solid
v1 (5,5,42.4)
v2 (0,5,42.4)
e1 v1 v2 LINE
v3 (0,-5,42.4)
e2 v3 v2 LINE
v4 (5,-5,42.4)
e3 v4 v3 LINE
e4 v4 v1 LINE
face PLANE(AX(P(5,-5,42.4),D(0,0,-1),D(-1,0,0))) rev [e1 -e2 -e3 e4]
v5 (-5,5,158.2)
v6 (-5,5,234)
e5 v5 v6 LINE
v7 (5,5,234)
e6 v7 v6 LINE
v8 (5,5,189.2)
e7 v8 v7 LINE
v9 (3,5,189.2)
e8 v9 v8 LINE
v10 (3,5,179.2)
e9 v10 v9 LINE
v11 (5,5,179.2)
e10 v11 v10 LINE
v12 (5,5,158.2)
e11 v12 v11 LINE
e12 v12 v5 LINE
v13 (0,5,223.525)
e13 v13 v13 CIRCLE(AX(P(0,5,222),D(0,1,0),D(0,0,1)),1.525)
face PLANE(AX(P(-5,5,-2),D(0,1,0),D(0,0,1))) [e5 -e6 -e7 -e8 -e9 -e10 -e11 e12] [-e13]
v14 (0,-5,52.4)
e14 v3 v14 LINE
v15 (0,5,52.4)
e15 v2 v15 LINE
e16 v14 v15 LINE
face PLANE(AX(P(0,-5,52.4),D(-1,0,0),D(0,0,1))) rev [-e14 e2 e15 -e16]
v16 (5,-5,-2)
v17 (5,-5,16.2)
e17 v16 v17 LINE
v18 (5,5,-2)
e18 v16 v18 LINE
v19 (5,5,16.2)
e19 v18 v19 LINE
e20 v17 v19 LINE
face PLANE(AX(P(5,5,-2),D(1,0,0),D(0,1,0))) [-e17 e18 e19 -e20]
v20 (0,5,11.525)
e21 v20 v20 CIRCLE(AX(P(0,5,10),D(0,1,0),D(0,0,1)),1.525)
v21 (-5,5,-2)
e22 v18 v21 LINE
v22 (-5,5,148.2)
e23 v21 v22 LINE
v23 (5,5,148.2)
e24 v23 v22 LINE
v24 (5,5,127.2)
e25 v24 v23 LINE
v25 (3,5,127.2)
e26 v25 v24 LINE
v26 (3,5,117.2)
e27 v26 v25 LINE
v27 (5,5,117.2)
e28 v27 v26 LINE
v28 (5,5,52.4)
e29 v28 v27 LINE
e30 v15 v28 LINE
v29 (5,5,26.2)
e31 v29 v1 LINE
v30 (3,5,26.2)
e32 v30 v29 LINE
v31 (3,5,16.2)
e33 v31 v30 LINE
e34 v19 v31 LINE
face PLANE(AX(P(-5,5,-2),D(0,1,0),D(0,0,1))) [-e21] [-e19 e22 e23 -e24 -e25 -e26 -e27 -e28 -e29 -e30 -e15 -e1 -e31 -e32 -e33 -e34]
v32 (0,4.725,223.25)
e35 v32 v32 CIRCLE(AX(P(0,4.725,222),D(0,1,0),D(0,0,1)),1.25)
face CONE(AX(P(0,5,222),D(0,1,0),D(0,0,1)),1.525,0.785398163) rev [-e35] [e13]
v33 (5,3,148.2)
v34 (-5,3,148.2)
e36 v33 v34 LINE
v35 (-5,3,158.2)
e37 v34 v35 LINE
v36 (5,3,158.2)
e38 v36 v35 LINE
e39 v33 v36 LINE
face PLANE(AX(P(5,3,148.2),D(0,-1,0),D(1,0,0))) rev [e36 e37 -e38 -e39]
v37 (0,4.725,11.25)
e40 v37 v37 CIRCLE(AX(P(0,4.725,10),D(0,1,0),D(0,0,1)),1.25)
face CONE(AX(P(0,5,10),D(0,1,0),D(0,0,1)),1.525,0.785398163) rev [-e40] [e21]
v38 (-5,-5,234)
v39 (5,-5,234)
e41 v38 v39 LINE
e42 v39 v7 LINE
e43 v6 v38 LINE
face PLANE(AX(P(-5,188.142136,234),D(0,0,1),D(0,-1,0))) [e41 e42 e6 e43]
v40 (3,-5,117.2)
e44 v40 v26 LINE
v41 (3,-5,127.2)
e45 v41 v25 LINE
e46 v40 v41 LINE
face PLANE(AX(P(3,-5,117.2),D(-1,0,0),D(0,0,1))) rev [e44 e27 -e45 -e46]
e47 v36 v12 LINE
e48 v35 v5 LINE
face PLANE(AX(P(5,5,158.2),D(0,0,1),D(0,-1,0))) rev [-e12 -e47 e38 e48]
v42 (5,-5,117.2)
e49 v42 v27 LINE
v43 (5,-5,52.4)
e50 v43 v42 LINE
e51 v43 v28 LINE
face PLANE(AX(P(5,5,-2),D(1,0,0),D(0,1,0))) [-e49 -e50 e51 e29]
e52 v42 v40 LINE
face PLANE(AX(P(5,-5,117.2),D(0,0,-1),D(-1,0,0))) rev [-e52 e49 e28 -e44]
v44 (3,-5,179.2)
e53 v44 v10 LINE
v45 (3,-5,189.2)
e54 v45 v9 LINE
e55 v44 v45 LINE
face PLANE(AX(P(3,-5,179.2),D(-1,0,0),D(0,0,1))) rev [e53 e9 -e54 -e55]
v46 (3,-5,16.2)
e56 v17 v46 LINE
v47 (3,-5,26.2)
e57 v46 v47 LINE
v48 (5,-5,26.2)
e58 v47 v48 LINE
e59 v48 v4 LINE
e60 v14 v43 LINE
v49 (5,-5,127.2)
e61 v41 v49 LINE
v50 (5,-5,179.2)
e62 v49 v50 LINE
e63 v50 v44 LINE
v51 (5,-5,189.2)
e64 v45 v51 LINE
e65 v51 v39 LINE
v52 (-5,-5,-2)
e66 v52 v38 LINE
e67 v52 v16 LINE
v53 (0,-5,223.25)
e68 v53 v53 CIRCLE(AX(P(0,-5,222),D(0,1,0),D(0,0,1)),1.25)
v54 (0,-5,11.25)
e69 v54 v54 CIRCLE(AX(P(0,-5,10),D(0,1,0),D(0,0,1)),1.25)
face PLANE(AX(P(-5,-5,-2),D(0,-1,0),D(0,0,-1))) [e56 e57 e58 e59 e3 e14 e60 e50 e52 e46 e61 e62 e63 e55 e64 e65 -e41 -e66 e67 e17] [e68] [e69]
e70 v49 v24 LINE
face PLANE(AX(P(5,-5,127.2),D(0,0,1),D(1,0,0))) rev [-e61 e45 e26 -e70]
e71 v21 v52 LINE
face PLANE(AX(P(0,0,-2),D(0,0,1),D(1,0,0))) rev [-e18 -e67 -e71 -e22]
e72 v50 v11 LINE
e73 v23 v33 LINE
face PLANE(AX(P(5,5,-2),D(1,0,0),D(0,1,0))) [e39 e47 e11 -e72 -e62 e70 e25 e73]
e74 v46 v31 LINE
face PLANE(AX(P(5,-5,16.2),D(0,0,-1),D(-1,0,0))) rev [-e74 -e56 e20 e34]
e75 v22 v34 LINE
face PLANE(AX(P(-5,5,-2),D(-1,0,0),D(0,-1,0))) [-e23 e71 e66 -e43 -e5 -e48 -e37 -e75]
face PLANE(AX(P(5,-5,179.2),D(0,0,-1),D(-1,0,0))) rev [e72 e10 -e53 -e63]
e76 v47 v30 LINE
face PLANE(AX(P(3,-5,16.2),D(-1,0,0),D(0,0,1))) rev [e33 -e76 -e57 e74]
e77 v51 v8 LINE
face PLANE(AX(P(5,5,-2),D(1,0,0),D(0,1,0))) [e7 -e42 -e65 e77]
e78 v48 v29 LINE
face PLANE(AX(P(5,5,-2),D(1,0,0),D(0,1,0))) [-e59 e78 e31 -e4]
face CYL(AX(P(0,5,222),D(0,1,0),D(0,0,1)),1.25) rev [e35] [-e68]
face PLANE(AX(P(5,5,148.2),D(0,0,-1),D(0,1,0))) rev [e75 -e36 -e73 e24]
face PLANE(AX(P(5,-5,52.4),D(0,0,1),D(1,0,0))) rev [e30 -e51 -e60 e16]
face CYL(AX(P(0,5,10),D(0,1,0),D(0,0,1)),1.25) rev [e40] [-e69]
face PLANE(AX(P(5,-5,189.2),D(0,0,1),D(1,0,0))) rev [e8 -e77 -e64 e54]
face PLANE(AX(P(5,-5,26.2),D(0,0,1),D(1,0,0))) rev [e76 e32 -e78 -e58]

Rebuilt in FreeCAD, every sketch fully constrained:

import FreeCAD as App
import Part
import Sketcher
Q = App.Units.Quantity

doc = App.newDocument("Part")
body = doc.addObject("PartDesign::Body", "Body")

# Sketch on XY plane
sketch1 = body.newObject("Sketcher::SketchObject", "Sketch")
sketch1.AttachmentSupport = (doc.getObject("XY_Plane"), [""])
sketch1.MapMode = "FlatFace"
sketch1.addGeometry(Part.LineSegment(App.Vector(-5, 5, 0), App.Vector(-5, -5, 0)), False)
sketch1.addGeometry(Part.LineSegment(App.Vector(-5, -5, 0), App.Vector(5, -5, 0)), False)
sketch1.addGeometry(Part.LineSegment(App.Vector(5, -5, 0), App.Vector(5, 5, 0)), False)
sketch1.addGeometry(Part.LineSegment(App.Vector(5, 5, 0), App.Vector(-5, 5, 0)), False)
sketch1.addConstraint(Sketcher.Constraint("Coincident", 0, 2, 1, 1))
sketch1.addConstraint(Sketcher.Constraint("Coincident", 1, 2, 2, 1))
sketch1.addConstraint(Sketcher.Constraint("Coincident", 2, 2, 3, 1))
sketch1.addConstraint(Sketcher.Constraint("Coincident", 3, 2, 0, 1))
sketch1.addConstraint(Sketcher.Constraint("Vertical", 0))
sketch1.addConstraint(Sketcher.Constraint("Horizontal", 1))
sketch1.addConstraint(Sketcher.Constraint("Vertical", 2))
sketch1.addConstraint(Sketcher.Constraint("Horizontal", 3))
sketch1.addConstraint(Sketcher.Constraint("Symmetric", 0, 2, 2, 2, -1, 1))
sketch1.addConstraint(Sketcher.Constraint("Equal", 3, 0))
sketch1.addConstraint(Sketcher.Constraint("DistanceX", 1, 1, 1, 2, Q("10 mm")))
pad1 = body.newObject("PartDesign::Pad", "Pad")
pad1.Profile = sketch1
pad1.Type = "TwoLengths"
pad1.Length = 234
pad1.Length2 = 2

# Sketch on XZ plane
sketch2 = body.newObject("Sketcher::SketchObject", "Sketch001")
sketch2.AttachmentSupport = (doc.getObject("XZ_Plane"), [""])
sketch2.MapMode = "FlatFace"
sketch2.AttachmentOffset = App.Placement(App.Vector(0, 0, -5), App.Rotation())
sketch2.addGeometry(Part.LineSegment(App.Vector(3, 117.2, 0), App.Vector(3, 127.2, 0)), False)
sketch2.addGeometry(Part.LineSegment(App.Vector(3, 127.2, 0), App.Vector(5, 127.2, 0)), False)
sketch2.addGeometry(Part.LineSegment(App.Vector(5, 127.2, 0), App.Vector(5, 117.2, 0)), False)
sketch2.addGeometry(Part.LineSegment(App.Vector(5, 117.2, 0), App.Vector(3, 117.2, 0)), False)
sketch2.addGeometry(Part.LineSegment(App.Vector(3, 179.2, 0), App.Vector(3, 189.2, 0)), False)
sketch2.addGeometry(Part.LineSegment(App.Vector(3, 189.2, 0), App.Vector(5, 189.2, 0)), False)
sketch2.addGeometry(Part.LineSegment(App.Vector(5, 189.2, 0), App.Vector(5, 179.2, 0)), False)
sketch2.addGeometry(Part.LineSegment(App.Vector(5, 179.2, 0), App.Vector(3, 179.2, 0)), False)
sketch2.addGeometry(Part.LineSegment(App.Vector(3, 16.2, 0), App.Vector(3, 26.2, 0)), False)
sketch2.addGeometry(Part.LineSegment(App.Vector(3, 26.2, 0), App.Vector(5, 26.2, 0)), False)
sketch2.addGeometry(Part.LineSegment(App.Vector(5, 26.2, 0), App.Vector(5, 16.2, 0)), False)
sketch2.addGeometry(Part.LineSegment(App.Vector(5, 16.2, 0), App.Vector(3, 16.2, 0)), False)
sketch2.addGeometry(Part.LineSegment(App.Vector(0, 42.4, 0), App.Vector(0, 52.4, 0)), False)
sketch2.addGeometry(Part.LineSegment(App.Vector(0, 52.4, 0), App.Vector(5, 52.4, 0)), False)
sketch2.addGeometry(Part.LineSegment(App.Vector(5, 52.4, 0), App.Vector(5, 42.4, 0)), False)
sketch2.addGeometry(Part.LineSegment(App.Vector(5, 42.4, 0), App.Vector(0, 42.4, 0)), False)
sketch2.addConstraint(Sketcher.Constraint("Coincident", 0, 2, 1, 1))
sketch2.addConstraint(Sketcher.Constraint("Coincident", 1, 2, 2, 1))
sketch2.addConstraint(Sketcher.Constraint("Coincident", 2, 2, 3, 1))
sketch2.addConstraint(Sketcher.Constraint("Coincident", 3, 2, 0, 1))
sketch2.addConstraint(Sketcher.Constraint("Coincident", 4, 2, 5, 1))
sketch2.addConstraint(Sketcher.Constraint("Coincident", 5, 2, 6, 1))
sketch2.addConstraint(Sketcher.Constraint("Coincident", 6, 2, 7, 1))
sketch2.addConstraint(Sketcher.Constraint("Coincident", 7, 2, 4, 1))
sketch2.addConstraint(Sketcher.Constraint("Coincident", 8, 2, 9, 1))
sketch2.addConstraint(Sketcher.Constraint("Coincident", 9, 2, 10, 1))
sketch2.addConstraint(Sketcher.Constraint("Coincident", 10, 2, 11, 1))
sketch2.addConstraint(Sketcher.Constraint("Coincident", 11, 2, 8, 1))
sketch2.addConstraint(Sketcher.Constraint("Coincident", 12, 2, 13, 1))
sketch2.addConstraint(Sketcher.Constraint("Coincident", 13, 2, 14, 1))
sketch2.addConstraint(Sketcher.Constraint("Coincident", 14, 2, 15, 1))
sketch2.addConstraint(Sketcher.Constraint("Coincident", 15, 2, 12, 1))
sketch2.addConstraint(Sketcher.Constraint("Vertical", 0))
sketch2.addConstraint(Sketcher.Constraint("Horizontal", 1))
sketch2.addConstraint(Sketcher.Constraint("Vertical", 2))
sketch2.addConstraint(Sketcher.Constraint("Horizontal", 3))
sketch2.addConstraint(Sketcher.Constraint("Vertical", 4))
sketch2.addConstraint(Sketcher.Constraint("Horizontal", 5))
sketch2.addConstraint(Sketcher.Constraint("Vertical", 6))
sketch2.addConstraint(Sketcher.Constraint("Horizontal", 7))
sketch2.addConstraint(Sketcher.Constraint("Vertical", 8))
sketch2.addConstraint(Sketcher.Constraint("Horizontal", 9))
sketch2.addConstraint(Sketcher.Constraint("Vertical", 10))
sketch2.addConstraint(Sketcher.Constraint("Horizontal", 11))
sketch2.addConstraint(Sketcher.Constraint("Vertical", 12))
sketch2.addConstraint(Sketcher.Constraint("Horizontal", 13))
sketch2.addConstraint(Sketcher.Constraint("Vertical", 14))
sketch2.addConstraint(Sketcher.Constraint("Horizontal", 15))
sketch2.addConstraint(Sketcher.Constraint("PointOnObject", 12, 2, -2))
sketch2.addConstraint(Sketcher.Constraint("Vertical", 3, 2, 4, 2))
sketch2.addConstraint(Sketcher.Constraint("Vertical", 2, 2, 5, 2))
sketch2.addConstraint(Sketcher.Constraint("Vertical", 7, 2, 8, 2))
sketch2.addConstraint(Sketcher.Constraint("Vertical", 6, 2, 9, 2))
sketch2.addConstraint(Sketcher.Constraint("Vertical", 10, 2, 13, 2))
sketch2.addConstraint(Sketcher.Constraint("Equal", 2, 4))
sketch2.addConstraint(Sketcher.Constraint("Equal", 6, 8))
sketch2.addConstraint(Sketcher.Constraint("Equal", 10, 12))
sketch2.addConstraint(Sketcher.Constraint("DistanceX", 1, 1, 1, 2, Q("2 mm")))
sketch2.addConstraint(Sketcher.Constraint("DistanceX", 13, 1, 13, 2, Q("5 mm")))
sketch2.addConstraint(Sketcher.Constraint("DistanceY", 0, 1, 0, 2, Q("10 mm")))
sketch2.addConstraint(Sketcher.Constraint("DistanceY", 0, 2, 4, 2, Q("62 mm")))
sketch2.addConstraint(Sketcher.Constraint("DistanceY", 8, 2, 3, 2, Q("91 mm")))
sketch2.addConstraint(Sketcher.Constraint("DistanceY", -1, 1, 0, 2, Q("127.2 mm")))
sketch2.addConstraint(Sketcher.Constraint("DistanceY", -1, 1, 12, 2, Q("52.4 mm")))
pocket1 = body.newObject("PartDesign::Pocket", "Pocket")
pocket1.Profile = sketch2
pocket1.Type = "ThroughAll"
pocket1.Reversed = True

# Sketch on YZ plane
sketch3 = body.newObject("Sketcher::SketchObject", "Sketch002")
sketch3.AttachmentSupport = (doc.getObject("YZ_Plane"), [""])
sketch3.MapMode = "FlatFace"
sketch3.AttachmentOffset = App.Placement(App.Vector(0, 0, -5), App.Rotation())
sketch3.addGeometry(Part.LineSegment(App.Vector(5, 148.2, 0), App.Vector(3, 148.2, 0)), False)
sketch3.addGeometry(Part.LineSegment(App.Vector(3, 148.2, 0), App.Vector(3, 158.2, 0)), False)
sketch3.addGeometry(Part.LineSegment(App.Vector(3, 158.2, 0), App.Vector(5, 158.2, 0)), False)
sketch3.addGeometry(Part.LineSegment(App.Vector(5, 158.2, 0), App.Vector(5, 148.2, 0)), False)
sketch3.addConstraint(Sketcher.Constraint("Coincident", 0, 2, 1, 1))
sketch3.addConstraint(Sketcher.Constraint("Coincident", 1, 2, 2, 1))
sketch3.addConstraint(Sketcher.Constraint("Coincident", 2, 2, 3, 1))
sketch3.addConstraint(Sketcher.Constraint("Coincident", 3, 2, 0, 1))
sketch3.addConstraint(Sketcher.Constraint("Horizontal", 0))
sketch3.addConstraint(Sketcher.Constraint("Vertical", 1))
sketch3.addConstraint(Sketcher.Constraint("Horizontal", 2))
sketch3.addConstraint(Sketcher.Constraint("Vertical", 3))
sketch3.addConstraint(Sketcher.Constraint("DistanceX", 0, 2, 0, 1, Q("2 mm")))
sketch3.addConstraint(Sketcher.Constraint("DistanceY", 1, 1, 1, 2, Q("10 mm")))
sketch3.addConstraint(Sketcher.Constraint("DistanceX", -1, 1, 0, 2, Q("3 mm")))
sketch3.addConstraint(Sketcher.Constraint("DistanceY", -1, 1, 0, 2, Q("148.2 mm")))
pocket2 = body.newObject("PartDesign::Pocket", "Pocket001")
pocket2.Profile = sketch3
pocket2.Type = "ThroughAll"
pocket2.Reversed = True

# Sketch on XZ plane
sketch4 = body.newObject("Sketcher::SketchObject", "Sketch003")
sketch4.AttachmentSupport = (doc.getObject("XZ_Plane"), [""])
sketch4.MapMode = "FlatFace"
sketch4.AttachmentOffset = App.Placement(App.Vector(0, 0, -5), App.Rotation())
sketch4.addGeometry(Part.Circle(App.Vector(0, 222, 0), App.Vector(0, 0, 1), 1.25), False)
sketch4.addGeometry(Part.Circle(App.Vector(0, 10, 0), App.Vector(0, 0, 1), 1.25), False)
sketch4.addConstraint(Sketcher.Constraint("Equal", 0, 1))
sketch4.addConstraint(Sketcher.Constraint("PointOnObject", 0, 3, -2))
sketch4.addConstraint(Sketcher.Constraint("PointOnObject", 1, 3, -2))
sketch4.addConstraint(Sketcher.Constraint("Diameter", 0, Q("2.5 mm")))
sketch4.addConstraint(Sketcher.Constraint("DistanceY", -1, 1, 0, 3, Q("222 mm")))
sketch4.addConstraint(Sketcher.Constraint("DistanceY", -1, 1, 1, 3, Q("10 mm")))
doc.recompute()
hole = body.newObject("PartDesign::Hole", "Hole")
hole.Profile = sketch4
hole.ThreadType = "None"
hole.Diameter = 2.5
hole.DepthType = "ThroughAll"
hole.HoleCutType = "Countersink"
hole.HoleCutDiameter = 3.05
hole.HoleCutCountersinkAngle = 90
hole.Reversed = True

doc.recompute()
